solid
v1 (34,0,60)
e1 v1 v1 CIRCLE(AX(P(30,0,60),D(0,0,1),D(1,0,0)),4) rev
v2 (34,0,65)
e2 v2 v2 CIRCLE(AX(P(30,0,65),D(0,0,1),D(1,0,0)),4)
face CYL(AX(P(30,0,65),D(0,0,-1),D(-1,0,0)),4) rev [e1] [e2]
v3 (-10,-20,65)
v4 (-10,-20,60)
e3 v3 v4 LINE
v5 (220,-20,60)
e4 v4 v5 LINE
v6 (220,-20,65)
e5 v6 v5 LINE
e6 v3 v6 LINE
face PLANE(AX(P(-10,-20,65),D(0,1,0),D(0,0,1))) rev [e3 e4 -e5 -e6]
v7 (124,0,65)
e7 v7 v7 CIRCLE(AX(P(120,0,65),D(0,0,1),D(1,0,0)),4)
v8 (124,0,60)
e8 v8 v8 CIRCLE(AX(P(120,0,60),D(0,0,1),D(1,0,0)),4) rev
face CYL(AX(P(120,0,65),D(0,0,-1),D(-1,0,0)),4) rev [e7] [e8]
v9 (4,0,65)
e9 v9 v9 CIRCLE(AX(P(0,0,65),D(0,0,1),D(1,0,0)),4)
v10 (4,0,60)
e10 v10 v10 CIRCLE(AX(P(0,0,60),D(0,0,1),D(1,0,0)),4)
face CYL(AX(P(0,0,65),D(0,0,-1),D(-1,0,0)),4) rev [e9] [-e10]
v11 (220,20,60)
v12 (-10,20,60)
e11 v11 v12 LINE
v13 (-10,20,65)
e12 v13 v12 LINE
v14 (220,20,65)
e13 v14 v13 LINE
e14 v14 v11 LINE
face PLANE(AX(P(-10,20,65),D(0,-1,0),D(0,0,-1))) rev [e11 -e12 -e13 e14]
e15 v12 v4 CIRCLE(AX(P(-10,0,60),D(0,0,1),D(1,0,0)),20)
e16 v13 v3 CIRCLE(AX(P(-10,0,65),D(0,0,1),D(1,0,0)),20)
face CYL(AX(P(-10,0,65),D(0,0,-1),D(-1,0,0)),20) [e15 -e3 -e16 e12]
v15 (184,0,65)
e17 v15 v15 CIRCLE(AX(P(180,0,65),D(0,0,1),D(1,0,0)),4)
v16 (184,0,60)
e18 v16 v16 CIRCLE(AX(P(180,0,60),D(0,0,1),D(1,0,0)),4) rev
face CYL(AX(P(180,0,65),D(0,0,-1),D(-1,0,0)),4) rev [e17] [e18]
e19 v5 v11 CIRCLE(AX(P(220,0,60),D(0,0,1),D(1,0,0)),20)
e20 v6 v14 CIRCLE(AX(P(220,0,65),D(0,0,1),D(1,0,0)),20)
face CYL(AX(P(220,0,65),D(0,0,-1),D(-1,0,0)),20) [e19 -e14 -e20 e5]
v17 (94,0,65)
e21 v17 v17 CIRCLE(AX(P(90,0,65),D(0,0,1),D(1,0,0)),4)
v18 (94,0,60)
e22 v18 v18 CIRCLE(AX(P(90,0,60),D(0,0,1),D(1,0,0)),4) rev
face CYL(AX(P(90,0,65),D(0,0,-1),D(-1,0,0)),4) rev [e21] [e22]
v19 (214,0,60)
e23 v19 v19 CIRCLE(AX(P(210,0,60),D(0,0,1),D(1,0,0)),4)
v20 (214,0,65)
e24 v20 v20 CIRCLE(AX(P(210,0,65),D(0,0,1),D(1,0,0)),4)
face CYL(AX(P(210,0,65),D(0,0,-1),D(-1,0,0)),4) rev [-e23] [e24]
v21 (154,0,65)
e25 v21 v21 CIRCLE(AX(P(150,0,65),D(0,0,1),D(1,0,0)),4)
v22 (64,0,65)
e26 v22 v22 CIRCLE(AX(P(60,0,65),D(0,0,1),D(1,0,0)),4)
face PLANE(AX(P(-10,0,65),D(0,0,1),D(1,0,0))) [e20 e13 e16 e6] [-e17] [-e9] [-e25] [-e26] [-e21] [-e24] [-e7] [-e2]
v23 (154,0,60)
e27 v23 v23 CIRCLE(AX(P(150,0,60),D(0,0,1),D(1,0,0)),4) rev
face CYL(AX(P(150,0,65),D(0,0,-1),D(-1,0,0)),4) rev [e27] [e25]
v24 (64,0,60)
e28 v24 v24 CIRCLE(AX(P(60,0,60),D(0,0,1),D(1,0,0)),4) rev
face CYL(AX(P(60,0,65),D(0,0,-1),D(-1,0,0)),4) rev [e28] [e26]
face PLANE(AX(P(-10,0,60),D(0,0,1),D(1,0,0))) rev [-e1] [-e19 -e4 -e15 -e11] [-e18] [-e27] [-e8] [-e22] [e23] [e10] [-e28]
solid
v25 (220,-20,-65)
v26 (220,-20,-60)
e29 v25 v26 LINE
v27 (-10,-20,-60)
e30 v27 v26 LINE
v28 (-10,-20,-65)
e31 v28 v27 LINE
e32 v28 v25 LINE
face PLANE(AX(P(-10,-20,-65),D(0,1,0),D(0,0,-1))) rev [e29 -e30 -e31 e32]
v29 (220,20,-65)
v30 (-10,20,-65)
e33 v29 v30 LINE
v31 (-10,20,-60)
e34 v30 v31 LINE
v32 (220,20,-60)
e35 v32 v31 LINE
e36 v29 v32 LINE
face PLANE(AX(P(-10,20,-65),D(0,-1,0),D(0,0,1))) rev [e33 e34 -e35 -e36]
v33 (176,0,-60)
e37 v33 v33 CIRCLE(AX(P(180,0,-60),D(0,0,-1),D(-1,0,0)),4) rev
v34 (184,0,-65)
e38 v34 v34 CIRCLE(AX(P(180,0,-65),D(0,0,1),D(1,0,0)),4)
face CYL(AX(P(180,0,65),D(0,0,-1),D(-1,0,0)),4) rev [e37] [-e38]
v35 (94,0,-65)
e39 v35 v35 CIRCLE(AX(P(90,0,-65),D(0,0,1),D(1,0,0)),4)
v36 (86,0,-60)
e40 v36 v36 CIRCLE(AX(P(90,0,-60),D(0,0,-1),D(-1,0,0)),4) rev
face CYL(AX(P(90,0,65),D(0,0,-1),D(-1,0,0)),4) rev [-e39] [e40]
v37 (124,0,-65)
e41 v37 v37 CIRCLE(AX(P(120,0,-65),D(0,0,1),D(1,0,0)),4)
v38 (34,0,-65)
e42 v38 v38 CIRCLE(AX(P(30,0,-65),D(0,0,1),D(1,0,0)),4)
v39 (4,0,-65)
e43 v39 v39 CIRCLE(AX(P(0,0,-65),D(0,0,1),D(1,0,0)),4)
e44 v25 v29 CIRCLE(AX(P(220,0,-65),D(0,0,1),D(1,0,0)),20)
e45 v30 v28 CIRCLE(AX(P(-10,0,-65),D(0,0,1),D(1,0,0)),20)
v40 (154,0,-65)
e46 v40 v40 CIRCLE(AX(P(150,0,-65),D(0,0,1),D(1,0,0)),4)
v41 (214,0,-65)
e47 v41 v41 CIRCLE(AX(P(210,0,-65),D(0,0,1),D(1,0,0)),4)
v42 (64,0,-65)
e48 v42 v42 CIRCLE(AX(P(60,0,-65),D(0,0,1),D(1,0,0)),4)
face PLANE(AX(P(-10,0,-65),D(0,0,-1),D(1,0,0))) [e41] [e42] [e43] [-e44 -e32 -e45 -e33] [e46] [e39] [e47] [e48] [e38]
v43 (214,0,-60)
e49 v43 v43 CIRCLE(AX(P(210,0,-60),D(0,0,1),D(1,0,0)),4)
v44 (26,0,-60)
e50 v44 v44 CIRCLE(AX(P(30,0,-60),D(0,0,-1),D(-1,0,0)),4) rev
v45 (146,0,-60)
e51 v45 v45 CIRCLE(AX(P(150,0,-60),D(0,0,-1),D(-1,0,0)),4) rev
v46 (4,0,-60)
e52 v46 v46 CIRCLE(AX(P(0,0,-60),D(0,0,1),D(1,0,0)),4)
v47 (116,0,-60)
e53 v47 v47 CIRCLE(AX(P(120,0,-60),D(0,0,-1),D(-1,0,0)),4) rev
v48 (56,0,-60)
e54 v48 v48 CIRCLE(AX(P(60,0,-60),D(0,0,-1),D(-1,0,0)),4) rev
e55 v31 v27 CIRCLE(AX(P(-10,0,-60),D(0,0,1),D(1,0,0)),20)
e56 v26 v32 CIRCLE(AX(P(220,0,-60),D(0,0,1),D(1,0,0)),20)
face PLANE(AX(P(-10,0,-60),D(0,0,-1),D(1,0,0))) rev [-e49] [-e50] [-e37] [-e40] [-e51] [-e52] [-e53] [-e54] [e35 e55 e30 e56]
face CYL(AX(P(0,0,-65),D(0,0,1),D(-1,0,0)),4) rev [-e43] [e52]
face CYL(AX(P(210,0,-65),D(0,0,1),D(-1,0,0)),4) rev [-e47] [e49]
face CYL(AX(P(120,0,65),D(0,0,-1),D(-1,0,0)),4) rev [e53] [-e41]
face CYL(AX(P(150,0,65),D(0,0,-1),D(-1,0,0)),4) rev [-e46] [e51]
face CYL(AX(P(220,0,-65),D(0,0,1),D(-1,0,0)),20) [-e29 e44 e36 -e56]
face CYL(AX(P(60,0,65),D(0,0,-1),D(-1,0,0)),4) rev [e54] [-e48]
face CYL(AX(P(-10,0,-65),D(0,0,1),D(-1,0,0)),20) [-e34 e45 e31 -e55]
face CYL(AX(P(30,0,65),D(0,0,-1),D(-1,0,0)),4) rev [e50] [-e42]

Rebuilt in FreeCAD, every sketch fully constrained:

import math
import FreeCAD as App
import Part
import Sketcher

V = App.Vector

doc = App.newDocument("Part")
params = doc.addObject("Spreadsheet::Sheet", "Params")
for row, (alias, value) in enumerate([
    ("sketch1_diameter", "8 mm"),
    ("sketch1_radius", "20 mm"),
    ("sketch1_width", "230 mm"),
    ("pad1_length", "5 mm"),
    ("sketch2_diameter", "8 mm"),
    ("pad2_length", "66 mm"),
    ("pad2_length2", "66 mm"),
], start=1):
    params.set(f"A{row}", alias)
    params.set(f"B{row}", "=" + value)
    params.setAlias(f"B{row}", alias)

body = doc.addObject("PartDesign::Body", "Body")

sketch1 = body.newObject("Sketcher::SketchObject", "Sketch")
sketch1.AttachmentSupport = (doc.getObject("XY_Plane"), [""])
sketch1.MapMode = "FlatFace"
sketch1.AttachmentOffset = App.Placement(V(0, 0, 60), App.Rotation())
sketch1.addGeometry([
    Part.LineSegment(V(220, 20, 0), V(-10, 20, 0)),
    Part.ArcOfCircle(Part.Circle(V(-10, 0, 0), V(0, 0, 1), 20), math.radians(90), math.radians(270)),
    Part.LineSegment(V(-10, -20, 0), V(220, -20, 0)),
    Part.ArcOfCircle(Part.Circle(V(220, 0, 0), V(0, 0, 1), 20), math.radians(-90), math.radians(90)),
    Part.Circle(V(210, 0, 0), V(0, 0, 1), 4),
    Part.Circle(V(0, 0, 0), V(0, 0, 1), 4),
], False)
sketch1.addConstraint([
    Sketcher.Constraint("Tangent", 0, 2, 1, 1),
    Sketcher.Constraint("Tangent", 1, 2, 2, 1),
    Sketcher.Constraint("Tangent", 2, 2, 3, 1),
    Sketcher.Constraint("Tangent", 3, 2, 0, 1),
    Sketcher.Constraint("Horizontal", 0),
    Sketcher.Constraint("Horizontal", 2),
    Sketcher.Constraint("Coincident", 5, 3, -1, 1),
    Sketcher.Constraint("Equal", 4, 5),
    Sketcher.Constraint("PointOnObject", 1, 3, -1),
    Sketcher.Constraint("PointOnObject", 4, 3, -1),
    Sketcher.Constraint("Diameter", 4, 8.0),
    Sketcher.Constraint("Radius", 1, 20.0),
    Sketcher.Constraint("DistanceX", 0, 2, 0, 1, 230.0),
    Sketcher.Constraint("DistanceX", 1, 3, -1, 1, 10.0),
    Sketcher.Constraint("DistanceX", -1, 1, 4, 3, 210.0),
])
sketch1.setExpression("Constraints[10]", "Params.sketch1_diameter")
sketch1.setExpression("Constraints[11]", "Params.sketch1_radius")
sketch1.setExpression("Constraints[12]", "Params.sketch1_width")
pad1 = body.newObject("PartDesign::Pad", "Pad")
pad1.Profile = sketch1
pad1.setExpression("Length", "Params.pad1_length")
body2 = doc.addObject("PartDesign::Body", "Body001")
doc.recompute()

mirroring = doc.addObject("Part::Mirroring", "Mirroring")
mirroring.Source = body
mirroring.Base = V(0, 0, 0)
mirroring.Normal = V(0, 0, 1)
body2.BaseFeature = mirroring
doc.recompute()
body3 = doc.addObject("PartDesign::Body", "Body002")
body3.AllowCompound = True

sketch2 = body3.newObject("Sketcher::SketchObject", "Sketch001")
sketch2.AttachmentSupport = (doc.getObject("XY_Plane002"), [""])
sketch2.MapMode = "FlatFace"
sketch2.addGeometry([
    Part.Circle(V(210, 0, 0), V(0, 0, 1), 4),
    Part.Circle(V(180, 0, 0), V(0, 0, 1), 4),
    Part.Circle(V(150, 0, 0), V(0, 0, 1), 4),
    Part.Circle(V(120, 0, 0), V(0, 0, 1), 4),
    Part.Circle(V(90, 0, 0), V(0, 0, 1), 4),
    Part.Circle(V(60, 0, 0), V(0, 0, 1), 4),
    Part.Circle(V(30, 0, 0), V(0, 0, 1), 4),
    Part.Circle(V(0, 0, 0), V(0, 0, 1), 4),
], False)
sketch2.addConstraint([
    Sketcher.Constraint("Coincident", 7, 3, -1, 1),
    Sketcher.Constraint("Equal", 0, 1),
    Sketcher.Constraint("Equal", 1, 2),
    Sketcher.Constraint("Equal", 2, 3),
    Sketcher.Constraint("Equal", 3, 4),
    Sketcher.Constraint("Equal", 4, 5),
    Sketcher.Constraint("Equal", 5, 6),
    Sketcher.Constraint("Equal", 6, 7),
    Sketcher.Constraint("PointOnObject", 0, 3, -1),
    Sketcher.Constraint("PointOnObject", 1, 3, -1),
    Sketcher.Constraint("PointOnObject", 2, 3, -1),
    Sketcher.Constraint("PointOnObject", 3, 3, -1),
    Sketcher.Constraint("PointOnObject", 4, 3, -1),
    Sketcher.Constraint("PointOnObject", 5, 3, -1),
    Sketcher.Constraint("PointOnObject", 6, 3, -1),
    Sketcher.Constraint("Diameter", 0, 8.0),
    Sketcher.Constraint("DistanceX", -1, 1, 0, 3, 210.0),
    Sketcher.Constraint("DistanceX", -1, 1, 1, 3, 180.0),
    Sketcher.Constraint("DistanceX", -1, 1, 2, 3, 150.0),
    Sketcher.Constraint("DistanceX", -1, 1, 3, 3, 120.0),
    Sketcher.Constraint("DistanceX", -1, 1, 4, 3, 90.0),
    Sketcher.Constraint("DistanceX", -1, 1, 5, 3, 60.0),
    Sketcher.Constraint("DistanceX", -1, 1, 6, 3, 30.0),
])
sketch2.setExpression("Constraints[15]", "Params.sketch2_diameter")
pad2 = body3.newObject("PartDesign::Pad", "Pad001")
pad2.Profile = sketch2
pad2.Type = "TwoLengths"
pad2.setExpression("Length", "Params.pad2_length")
pad2.setExpression("Length2", "Params.pad2_length2")
doc.recompute()

body4 = doc.addObject("PartDesign::Body", "Body003")
body4.BaseFeature = body3
boolean = body.newObject("PartDesign::Boolean", "Boolean")
boolean.Type = "Cut"
boolean.addObjects([body4])
doc.recompute()

boolean2 = body2.newObject("PartDesign::Boolean", "Boolean001")
boolean2.Type = "Cut"
boolean2.addObjects([body3])
mirroring.Visibility = False

doc.recompute()
